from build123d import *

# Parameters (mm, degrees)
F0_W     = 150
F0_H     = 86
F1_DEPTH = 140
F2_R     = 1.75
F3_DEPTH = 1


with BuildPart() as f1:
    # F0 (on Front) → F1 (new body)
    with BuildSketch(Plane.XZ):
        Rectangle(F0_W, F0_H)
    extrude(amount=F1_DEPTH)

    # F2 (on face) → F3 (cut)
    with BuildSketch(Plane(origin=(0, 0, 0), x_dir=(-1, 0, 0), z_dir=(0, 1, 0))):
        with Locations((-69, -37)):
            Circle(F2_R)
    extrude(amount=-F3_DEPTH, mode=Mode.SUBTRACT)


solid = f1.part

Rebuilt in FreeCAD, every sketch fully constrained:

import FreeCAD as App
import Part
import Sketcher

V = App.Vector

doc = App.newDocument("Part")
body = doc.addObject("PartDesign::Body", "Body")

# Sketch on XZ plane
sketch1 = body.newObject("Sketcher::SketchObject", "Sketch")
sketch1.AttachmentSupport = (doc.getObject("XZ_Plane"), [""])
sketch1.MapMode = "FlatFace"
sketch1.addGeometry(Part.LineSegment(V(-75, 43, 0), V(-75, -43, 0)), False)
sketch1.addGeometry(Part.LineSegment(V(-75, -43, 0), V(75, -43, 0)), False)
sketch1.addGeometry(Part.LineSegment(V(75, -43, 0), V(75, 43, 0)), False)
sketch1.addGeometry(Part.LineSegment(V(75, 43, 0), V(-75, 43, 0)), False)
sketch1.addConstraint(Sketcher.Constraint("Coincident", 0, 2, 1, 1))
sketch1.addConstraint(Sketcher.Constraint("Coincident", 1, 2, 2, 1))
sketch1.addConstraint(Sketcher.Constraint("Coincident", 2, 2, 3, 1))
sketch1.addConstraint(Sketcher.Constraint("Coincident", 3, 2, 0, 1))
sketch1.addConstraint(Sketcher.Constraint("Vertical", 0))
sketch1.addConstraint(Sketcher.Constraint("Horizontal", 1))
sketch1.addConstraint(Sketcher.Constraint("Vertical", 2))
sketch1.addConstraint(Sketcher.Constraint("Horizontal", 3))
sketch1.addConstraint(Sketcher.Constraint("Symmetric", 0, 2, 2, 2, -1, 1))
sketch1.addConstraint(Sketcher.Constraint("DistanceX", 1, 1, 1, 2, 150.0))
sketch1.addConstraint(Sketcher.Constraint("DistanceY", 0, 2, 0, 1, 86.0))
pad1 = body.newObject("PartDesign::Pad", "Pad")
pad1.Profile = sketch1
pad1.Length = 140

# Sketch on XZ plane
sketch2 = body.newObject("Sketcher::SketchObject", "Sketch001")
sketch2.AttachmentSupport = (doc.getObject("XZ_Plane"), [""])
sketch2.MapMode = "FlatFace"
sketch2.addGeometry(Part.Circle(V(69, -37, 0), V(0, 0, 1), 1.75), False)
sketch2.addConstraint(Sketcher.Constraint("Diameter", 0, 3.5))
sketch2.addConstraint(Sketcher.Constraint("DistanceX", -1, 1, 0, 3, 69.0))
sketch2.addConstraint(Sketcher.Constraint("DistanceY", 0, 3, -1, 1, 37.0))
pocket1 = body.newObject("PartDesign::Pocket", "Pocket")
pocket1.Profile = sketch2
pocket1.Length = 1
pocket1.Reversed = True

doc.recompute()
